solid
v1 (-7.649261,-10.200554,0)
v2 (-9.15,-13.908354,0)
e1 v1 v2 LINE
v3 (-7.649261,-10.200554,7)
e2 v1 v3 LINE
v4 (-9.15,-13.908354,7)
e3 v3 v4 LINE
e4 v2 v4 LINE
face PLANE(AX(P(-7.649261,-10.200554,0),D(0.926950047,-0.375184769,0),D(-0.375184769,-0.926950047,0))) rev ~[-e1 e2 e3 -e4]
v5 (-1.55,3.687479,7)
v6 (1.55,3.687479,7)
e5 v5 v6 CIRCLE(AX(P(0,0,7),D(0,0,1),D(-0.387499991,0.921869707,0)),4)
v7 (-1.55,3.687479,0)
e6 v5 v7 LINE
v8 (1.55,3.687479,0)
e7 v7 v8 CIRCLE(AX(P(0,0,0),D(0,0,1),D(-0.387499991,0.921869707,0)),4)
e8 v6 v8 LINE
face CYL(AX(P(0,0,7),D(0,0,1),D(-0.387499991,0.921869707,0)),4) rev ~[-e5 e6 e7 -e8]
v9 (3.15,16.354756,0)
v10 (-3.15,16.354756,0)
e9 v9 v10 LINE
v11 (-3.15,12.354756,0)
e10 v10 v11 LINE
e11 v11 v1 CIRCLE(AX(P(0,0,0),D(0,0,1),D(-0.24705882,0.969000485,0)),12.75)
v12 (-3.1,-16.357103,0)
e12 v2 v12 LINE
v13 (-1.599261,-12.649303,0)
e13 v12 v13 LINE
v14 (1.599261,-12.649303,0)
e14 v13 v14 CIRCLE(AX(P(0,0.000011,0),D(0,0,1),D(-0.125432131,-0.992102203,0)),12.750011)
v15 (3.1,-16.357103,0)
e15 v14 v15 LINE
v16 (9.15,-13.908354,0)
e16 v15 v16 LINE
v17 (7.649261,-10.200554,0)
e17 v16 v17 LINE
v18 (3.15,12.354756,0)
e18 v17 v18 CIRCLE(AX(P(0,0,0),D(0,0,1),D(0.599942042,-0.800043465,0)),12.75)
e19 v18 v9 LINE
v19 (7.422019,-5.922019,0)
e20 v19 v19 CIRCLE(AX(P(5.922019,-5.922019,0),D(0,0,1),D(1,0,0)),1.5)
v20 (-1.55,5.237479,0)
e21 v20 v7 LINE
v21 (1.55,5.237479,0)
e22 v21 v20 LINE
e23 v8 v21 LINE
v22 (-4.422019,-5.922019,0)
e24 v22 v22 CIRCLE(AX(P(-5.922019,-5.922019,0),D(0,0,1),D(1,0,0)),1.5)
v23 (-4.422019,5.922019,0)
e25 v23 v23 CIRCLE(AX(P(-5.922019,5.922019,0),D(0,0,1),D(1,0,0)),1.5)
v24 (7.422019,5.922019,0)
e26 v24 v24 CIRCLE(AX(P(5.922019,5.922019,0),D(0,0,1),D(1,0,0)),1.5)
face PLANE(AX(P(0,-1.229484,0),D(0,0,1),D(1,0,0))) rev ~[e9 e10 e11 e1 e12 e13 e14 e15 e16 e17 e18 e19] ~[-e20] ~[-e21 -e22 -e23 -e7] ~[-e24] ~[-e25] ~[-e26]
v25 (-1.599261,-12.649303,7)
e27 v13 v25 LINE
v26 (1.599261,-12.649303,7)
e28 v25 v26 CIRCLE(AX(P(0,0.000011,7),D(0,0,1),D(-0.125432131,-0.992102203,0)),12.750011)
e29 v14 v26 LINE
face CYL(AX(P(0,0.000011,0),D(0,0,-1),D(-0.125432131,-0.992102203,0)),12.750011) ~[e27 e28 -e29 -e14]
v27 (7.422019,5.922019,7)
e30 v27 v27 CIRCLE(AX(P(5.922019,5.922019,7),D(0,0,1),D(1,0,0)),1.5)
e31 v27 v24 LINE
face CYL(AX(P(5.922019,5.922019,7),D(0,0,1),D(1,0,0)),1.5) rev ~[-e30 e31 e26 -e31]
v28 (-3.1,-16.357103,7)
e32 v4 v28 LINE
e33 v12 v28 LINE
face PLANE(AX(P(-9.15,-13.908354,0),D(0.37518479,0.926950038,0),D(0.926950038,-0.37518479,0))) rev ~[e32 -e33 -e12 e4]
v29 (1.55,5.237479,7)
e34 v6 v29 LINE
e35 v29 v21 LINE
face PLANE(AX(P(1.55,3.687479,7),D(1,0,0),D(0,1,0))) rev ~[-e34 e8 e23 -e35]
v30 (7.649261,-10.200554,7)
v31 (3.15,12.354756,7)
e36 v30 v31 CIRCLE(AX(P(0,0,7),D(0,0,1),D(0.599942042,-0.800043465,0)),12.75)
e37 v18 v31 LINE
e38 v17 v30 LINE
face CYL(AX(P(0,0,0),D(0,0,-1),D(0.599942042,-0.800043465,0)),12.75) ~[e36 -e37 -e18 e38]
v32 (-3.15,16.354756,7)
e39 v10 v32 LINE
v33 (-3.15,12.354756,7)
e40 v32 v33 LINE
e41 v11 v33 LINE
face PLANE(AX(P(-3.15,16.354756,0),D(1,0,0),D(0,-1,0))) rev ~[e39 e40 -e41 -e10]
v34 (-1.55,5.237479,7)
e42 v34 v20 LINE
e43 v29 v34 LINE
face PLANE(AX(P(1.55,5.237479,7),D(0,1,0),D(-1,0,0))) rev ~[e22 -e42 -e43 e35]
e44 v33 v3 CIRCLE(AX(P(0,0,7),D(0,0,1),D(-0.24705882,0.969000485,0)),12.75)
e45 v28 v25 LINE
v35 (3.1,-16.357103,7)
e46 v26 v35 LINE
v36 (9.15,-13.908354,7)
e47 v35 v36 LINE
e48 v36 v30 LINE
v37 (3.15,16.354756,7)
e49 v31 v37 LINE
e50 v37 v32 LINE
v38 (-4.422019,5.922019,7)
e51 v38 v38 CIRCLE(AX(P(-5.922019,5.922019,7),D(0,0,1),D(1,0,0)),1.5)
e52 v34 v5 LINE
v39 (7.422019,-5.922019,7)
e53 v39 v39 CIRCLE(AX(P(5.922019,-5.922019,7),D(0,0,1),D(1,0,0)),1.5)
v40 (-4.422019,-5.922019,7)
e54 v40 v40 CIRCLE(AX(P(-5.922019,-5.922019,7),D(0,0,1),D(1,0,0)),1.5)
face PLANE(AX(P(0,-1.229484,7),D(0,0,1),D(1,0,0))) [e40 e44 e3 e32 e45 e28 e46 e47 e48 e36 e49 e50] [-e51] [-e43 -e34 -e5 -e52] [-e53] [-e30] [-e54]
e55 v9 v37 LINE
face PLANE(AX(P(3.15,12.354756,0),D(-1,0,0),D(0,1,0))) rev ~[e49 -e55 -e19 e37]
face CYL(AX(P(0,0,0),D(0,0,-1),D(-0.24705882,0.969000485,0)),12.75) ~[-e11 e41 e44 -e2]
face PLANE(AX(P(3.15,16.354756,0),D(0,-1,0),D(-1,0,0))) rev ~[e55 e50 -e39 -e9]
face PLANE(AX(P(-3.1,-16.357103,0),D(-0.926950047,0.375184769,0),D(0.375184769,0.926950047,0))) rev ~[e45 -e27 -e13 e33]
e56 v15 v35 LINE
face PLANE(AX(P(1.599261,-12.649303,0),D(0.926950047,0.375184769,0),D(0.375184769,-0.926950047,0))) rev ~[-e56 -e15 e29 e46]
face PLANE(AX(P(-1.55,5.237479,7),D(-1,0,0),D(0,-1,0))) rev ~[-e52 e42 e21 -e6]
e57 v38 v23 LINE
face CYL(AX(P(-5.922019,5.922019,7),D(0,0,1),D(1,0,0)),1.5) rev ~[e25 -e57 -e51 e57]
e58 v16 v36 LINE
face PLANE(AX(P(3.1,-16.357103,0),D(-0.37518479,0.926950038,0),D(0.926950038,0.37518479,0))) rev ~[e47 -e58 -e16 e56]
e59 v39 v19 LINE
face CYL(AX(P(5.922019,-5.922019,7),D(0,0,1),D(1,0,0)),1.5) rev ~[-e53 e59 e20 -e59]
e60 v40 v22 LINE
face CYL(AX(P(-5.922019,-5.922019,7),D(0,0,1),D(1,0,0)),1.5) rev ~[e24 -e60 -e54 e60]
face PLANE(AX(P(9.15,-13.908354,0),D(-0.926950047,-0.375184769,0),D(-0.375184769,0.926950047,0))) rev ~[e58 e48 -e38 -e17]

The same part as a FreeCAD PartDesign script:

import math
import FreeCAD as App
import Part
import Sketcher
from FreeCAD import Vector

doc = App.newDocument("Part")
body = doc.addObject("PartDesign::Body", "Body")

sketch1 = doc.addObject("Sketcher::SketchObject", "Sketch")
body.addObject(sketch1)
sketch1.AttachmentSupport = (doc.XY_Plane, [""])
sketch1.MapMode = "FlatFace"
sketch1.addGeometry([
    Part.LineSegment(Vector(9.2, -13.9, 0), Vector(7.6, -10.2, 0)),
    Part.ArcOfCircle(Part.Circle(Vector(0, 0, 0), Vector(0, 0, 1), 12.7), math.radians(-53), math.radians(76)),
    Part.LineSegment(Vector(3.1, 12.4, 0), Vector(3.1, 16.4, 0)),
    Part.LineSegment(Vector(3.1, 16.4, 0), Vector(-3.1, 16.4, 0)),
    Part.LineSegment(Vector(-3.1, 16.4, 0), Vector(-3.1, 12.4, 0)),
    Part.ArcOfCircle(Part.Circle(Vector(0, 0, 0), Vector(0, 0, 1), 12.7), math.radians(104), math.radians(233)),
    Part.LineSegment(Vector(-7.6, -10.2, 0), Vector(-9.2, -13.9, 0)),
    Part.LineSegment(Vector(-9.2, -13.9, 0), Vector(-3.1, -16.4, 0)),
    Part.LineSegment(Vector(-3.1, -16.4, 0), Vector(-1.6, -12.6, 0)),
    Part.ArcOfCircle(Part.Circle(Vector(0, 0, 0), Vector(0, 0, 1), 12.8), math.radians(-97.21), math.radians(-82.79)),
    Part.LineSegment(Vector(1.6, -12.6, 0), Vector(3.1, -16.4, 0)),
    Part.LineSegment(Vector(3.1, -16.4, 0), Vector(9.2, -13.9, 0)),
], False)
sketch1.addConstraint([
    Sketcher.Constraint("Coincident", 0, 2, 1, 1),
    Sketcher.Constraint("Coincident", 1, 2, 2, 1),
    Sketcher.Constraint("Coincident", 2, 2, 3, 1),
    Sketcher.Constraint("Coincident", 3, 2, 4, 1),
    Sketcher.Constraint("Coincident", 4, 2, 5, 1),
    Sketcher.Constraint("Coincident", 5, 2, 6, 1),
    Sketcher.Constraint("Coincident", 6, 2, 7, 1),
    Sketcher.Constraint("Coincident", 7, 2, 8, 1),
    Sketcher.Constraint("Coincident", 8, 2, 9, 1),
    Sketcher.Constraint("Coincident", 9, 2, 10, 1),
    Sketcher.Constraint("Coincident", 10, 2, 11, 1),
    Sketcher.Constraint("Coincident", 11, 2, 0, 1),
    Sketcher.Constraint("Vertical", 2),
    Sketcher.Constraint("Horizontal", 3),
    Sketcher.Constraint("Vertical", 4),
    Sketcher.Constraint("Coincident", 1, 3, -1, 1),
    Sketcher.Constraint("Coincident", 5, 3, -1, 1),
    Sketcher.Constraint("Equal", 1, 5),
    Sketcher.Constraint("Symmetric", 8, 2, 9, 2, -2),
    Sketcher.Constraint("Symmetric", 7, 2, 10, 2, -2),
    Sketcher.Constraint("Symmetric", 6, 2, 11, 2, -2),
    Sketcher.Constraint("Perpendicular", 6, 7),
    Sketcher.Constraint("Perpendicular", 7, 8),
    Sketcher.Constraint("Parallel", 0, 10),
    Sketcher.Constraint("Horizontal", 1, 2, 4, 2),
    Sketcher.Constraint("Equal", 6, 8),
    Sketcher.Constraint("DistanceY", 2, 1, 2, 2, 4.0),
    Sketcher.Constraint("Radius", 1, 12.75),
    Sketcher.Constraint("Distance", 0, 4.0),
    Sketcher.Constraint("DistanceX", 3, 2, 3, 1, 6.3),
    Sketcher.Constraint("DistanceX", 7, 2, -1, 1, 3.1),
    Sketcher.Constraint("DistanceX", 6, 2, -1, 1, 9.15),
    Sketcher.Constraint("Radius", 9, 12.750011),
    Sketcher.Constraint("DistanceY", 6, 2, 5, 2, 3.7078),
])
pad1 = doc.addObject("PartDesign::Pad", "Pad")
body.addObject(pad1)
pad1.Profile = sketch1
pad1.Length = 7

sketch2 = doc.addObject("Sketcher::SketchObject", "Sketch001")
body.addObject(sketch2)
sketch2.AttachmentSupport = (doc.XY_Plane, [""])
sketch2.MapMode = "FlatFace"
sketch2.AttachmentOffset = App.Placement(Vector(0, 0, 7), App.Rotation())
sketch2.addGeometry([
    Part.LineSegment(Vector(-1.6, 5.2, 0), Vector(-1.6, 3.7, 0)),
    Part.ArcOfCircle(Part.Circle(Vector(0, 0, 0), Vector(0, 0, 1), 4), math.radians(113), math.radians(427)),
    Part.LineSegment(Vector(1.6, 3.7, 0), Vector(1.6, 5.2, 0)),
    Part.LineSegment(Vector(1.6, 5.2, 0), Vector(-1.6, 5.2, 0)),
    Part.Circle(Vector(-5.9, 5.9, 0), Vector(0, 0, 1), 1.5),
    Part.Circle(Vector(-5.9, -5.9, 0), Vector(0, 0, 1), 1.5),
    Part.Circle(Vector(5.9, -5.9, 0), Vector(0, 0, 1), 1.5),
    Part.Circle(Vector(5.9, 5.9, 0), Vector(0, 0, 1), 1.5),
], False)
sketch2.addConstraint([
    Sketcher.Constraint("Coincident", 0, 2, 1, 1),
    Sketcher.Constraint("Coincident", 1, 2, 2, 1),
    Sketcher.Constraint("Coincident", 2, 2, 3, 1),
    Sketcher.Constraint("Coincident", 3, 2, 0, 1),
    Sketcher.Constraint("Vertical", 0),
    Sketcher.Constraint("Vertical", 2),
    Sketcher.Constraint("Horizontal", 3),
    Sketcher.Constraint("Coincident", 1, 3, -1, 1),
    Sketcher.Constraint("Equal", 4, 5),
    Sketcher.Constraint("Equal", 5, 6),
    Sketcher.Constraint("Equal", 6, 7),
    Sketcher.Constraint("Symmetric", 4, 3, 6, 3, -1, 1),
    Sketcher.Constraint("Symmetric", 5, 3, 7, 3, -1, 1),
    Sketcher.Constraint("Symmetric", 5, 3, 6, 3, -2),
    Sketcher.Constraint("Horizontal", 0, 2, 1, 2),
    Sketcher.Constraint("Diameter", 4, 3.0),
    Sketcher.Constraint("Radius", 1, 4.0),
    Sketcher.Constraint("DistanceX", 3, 2, 3, 1, 3.1),
    Sketcher.Constraint("DistanceY", 0, 2, 0, 1, 1.55),
    Sketcher.Constraint("DistanceX", 4, 3, -1, 1, 5.922019),
    Sketcher.Constraint("DistanceY", -1, 1, 4, 3, 5.922019),
])
pocket1 = doc.addObject("PartDesign::Pocket", "Pocket")
body.addObject(pocket1)
pocket1.Profile = sketch2
pocket1.Type = "ThroughAll"

doc.recompute()
